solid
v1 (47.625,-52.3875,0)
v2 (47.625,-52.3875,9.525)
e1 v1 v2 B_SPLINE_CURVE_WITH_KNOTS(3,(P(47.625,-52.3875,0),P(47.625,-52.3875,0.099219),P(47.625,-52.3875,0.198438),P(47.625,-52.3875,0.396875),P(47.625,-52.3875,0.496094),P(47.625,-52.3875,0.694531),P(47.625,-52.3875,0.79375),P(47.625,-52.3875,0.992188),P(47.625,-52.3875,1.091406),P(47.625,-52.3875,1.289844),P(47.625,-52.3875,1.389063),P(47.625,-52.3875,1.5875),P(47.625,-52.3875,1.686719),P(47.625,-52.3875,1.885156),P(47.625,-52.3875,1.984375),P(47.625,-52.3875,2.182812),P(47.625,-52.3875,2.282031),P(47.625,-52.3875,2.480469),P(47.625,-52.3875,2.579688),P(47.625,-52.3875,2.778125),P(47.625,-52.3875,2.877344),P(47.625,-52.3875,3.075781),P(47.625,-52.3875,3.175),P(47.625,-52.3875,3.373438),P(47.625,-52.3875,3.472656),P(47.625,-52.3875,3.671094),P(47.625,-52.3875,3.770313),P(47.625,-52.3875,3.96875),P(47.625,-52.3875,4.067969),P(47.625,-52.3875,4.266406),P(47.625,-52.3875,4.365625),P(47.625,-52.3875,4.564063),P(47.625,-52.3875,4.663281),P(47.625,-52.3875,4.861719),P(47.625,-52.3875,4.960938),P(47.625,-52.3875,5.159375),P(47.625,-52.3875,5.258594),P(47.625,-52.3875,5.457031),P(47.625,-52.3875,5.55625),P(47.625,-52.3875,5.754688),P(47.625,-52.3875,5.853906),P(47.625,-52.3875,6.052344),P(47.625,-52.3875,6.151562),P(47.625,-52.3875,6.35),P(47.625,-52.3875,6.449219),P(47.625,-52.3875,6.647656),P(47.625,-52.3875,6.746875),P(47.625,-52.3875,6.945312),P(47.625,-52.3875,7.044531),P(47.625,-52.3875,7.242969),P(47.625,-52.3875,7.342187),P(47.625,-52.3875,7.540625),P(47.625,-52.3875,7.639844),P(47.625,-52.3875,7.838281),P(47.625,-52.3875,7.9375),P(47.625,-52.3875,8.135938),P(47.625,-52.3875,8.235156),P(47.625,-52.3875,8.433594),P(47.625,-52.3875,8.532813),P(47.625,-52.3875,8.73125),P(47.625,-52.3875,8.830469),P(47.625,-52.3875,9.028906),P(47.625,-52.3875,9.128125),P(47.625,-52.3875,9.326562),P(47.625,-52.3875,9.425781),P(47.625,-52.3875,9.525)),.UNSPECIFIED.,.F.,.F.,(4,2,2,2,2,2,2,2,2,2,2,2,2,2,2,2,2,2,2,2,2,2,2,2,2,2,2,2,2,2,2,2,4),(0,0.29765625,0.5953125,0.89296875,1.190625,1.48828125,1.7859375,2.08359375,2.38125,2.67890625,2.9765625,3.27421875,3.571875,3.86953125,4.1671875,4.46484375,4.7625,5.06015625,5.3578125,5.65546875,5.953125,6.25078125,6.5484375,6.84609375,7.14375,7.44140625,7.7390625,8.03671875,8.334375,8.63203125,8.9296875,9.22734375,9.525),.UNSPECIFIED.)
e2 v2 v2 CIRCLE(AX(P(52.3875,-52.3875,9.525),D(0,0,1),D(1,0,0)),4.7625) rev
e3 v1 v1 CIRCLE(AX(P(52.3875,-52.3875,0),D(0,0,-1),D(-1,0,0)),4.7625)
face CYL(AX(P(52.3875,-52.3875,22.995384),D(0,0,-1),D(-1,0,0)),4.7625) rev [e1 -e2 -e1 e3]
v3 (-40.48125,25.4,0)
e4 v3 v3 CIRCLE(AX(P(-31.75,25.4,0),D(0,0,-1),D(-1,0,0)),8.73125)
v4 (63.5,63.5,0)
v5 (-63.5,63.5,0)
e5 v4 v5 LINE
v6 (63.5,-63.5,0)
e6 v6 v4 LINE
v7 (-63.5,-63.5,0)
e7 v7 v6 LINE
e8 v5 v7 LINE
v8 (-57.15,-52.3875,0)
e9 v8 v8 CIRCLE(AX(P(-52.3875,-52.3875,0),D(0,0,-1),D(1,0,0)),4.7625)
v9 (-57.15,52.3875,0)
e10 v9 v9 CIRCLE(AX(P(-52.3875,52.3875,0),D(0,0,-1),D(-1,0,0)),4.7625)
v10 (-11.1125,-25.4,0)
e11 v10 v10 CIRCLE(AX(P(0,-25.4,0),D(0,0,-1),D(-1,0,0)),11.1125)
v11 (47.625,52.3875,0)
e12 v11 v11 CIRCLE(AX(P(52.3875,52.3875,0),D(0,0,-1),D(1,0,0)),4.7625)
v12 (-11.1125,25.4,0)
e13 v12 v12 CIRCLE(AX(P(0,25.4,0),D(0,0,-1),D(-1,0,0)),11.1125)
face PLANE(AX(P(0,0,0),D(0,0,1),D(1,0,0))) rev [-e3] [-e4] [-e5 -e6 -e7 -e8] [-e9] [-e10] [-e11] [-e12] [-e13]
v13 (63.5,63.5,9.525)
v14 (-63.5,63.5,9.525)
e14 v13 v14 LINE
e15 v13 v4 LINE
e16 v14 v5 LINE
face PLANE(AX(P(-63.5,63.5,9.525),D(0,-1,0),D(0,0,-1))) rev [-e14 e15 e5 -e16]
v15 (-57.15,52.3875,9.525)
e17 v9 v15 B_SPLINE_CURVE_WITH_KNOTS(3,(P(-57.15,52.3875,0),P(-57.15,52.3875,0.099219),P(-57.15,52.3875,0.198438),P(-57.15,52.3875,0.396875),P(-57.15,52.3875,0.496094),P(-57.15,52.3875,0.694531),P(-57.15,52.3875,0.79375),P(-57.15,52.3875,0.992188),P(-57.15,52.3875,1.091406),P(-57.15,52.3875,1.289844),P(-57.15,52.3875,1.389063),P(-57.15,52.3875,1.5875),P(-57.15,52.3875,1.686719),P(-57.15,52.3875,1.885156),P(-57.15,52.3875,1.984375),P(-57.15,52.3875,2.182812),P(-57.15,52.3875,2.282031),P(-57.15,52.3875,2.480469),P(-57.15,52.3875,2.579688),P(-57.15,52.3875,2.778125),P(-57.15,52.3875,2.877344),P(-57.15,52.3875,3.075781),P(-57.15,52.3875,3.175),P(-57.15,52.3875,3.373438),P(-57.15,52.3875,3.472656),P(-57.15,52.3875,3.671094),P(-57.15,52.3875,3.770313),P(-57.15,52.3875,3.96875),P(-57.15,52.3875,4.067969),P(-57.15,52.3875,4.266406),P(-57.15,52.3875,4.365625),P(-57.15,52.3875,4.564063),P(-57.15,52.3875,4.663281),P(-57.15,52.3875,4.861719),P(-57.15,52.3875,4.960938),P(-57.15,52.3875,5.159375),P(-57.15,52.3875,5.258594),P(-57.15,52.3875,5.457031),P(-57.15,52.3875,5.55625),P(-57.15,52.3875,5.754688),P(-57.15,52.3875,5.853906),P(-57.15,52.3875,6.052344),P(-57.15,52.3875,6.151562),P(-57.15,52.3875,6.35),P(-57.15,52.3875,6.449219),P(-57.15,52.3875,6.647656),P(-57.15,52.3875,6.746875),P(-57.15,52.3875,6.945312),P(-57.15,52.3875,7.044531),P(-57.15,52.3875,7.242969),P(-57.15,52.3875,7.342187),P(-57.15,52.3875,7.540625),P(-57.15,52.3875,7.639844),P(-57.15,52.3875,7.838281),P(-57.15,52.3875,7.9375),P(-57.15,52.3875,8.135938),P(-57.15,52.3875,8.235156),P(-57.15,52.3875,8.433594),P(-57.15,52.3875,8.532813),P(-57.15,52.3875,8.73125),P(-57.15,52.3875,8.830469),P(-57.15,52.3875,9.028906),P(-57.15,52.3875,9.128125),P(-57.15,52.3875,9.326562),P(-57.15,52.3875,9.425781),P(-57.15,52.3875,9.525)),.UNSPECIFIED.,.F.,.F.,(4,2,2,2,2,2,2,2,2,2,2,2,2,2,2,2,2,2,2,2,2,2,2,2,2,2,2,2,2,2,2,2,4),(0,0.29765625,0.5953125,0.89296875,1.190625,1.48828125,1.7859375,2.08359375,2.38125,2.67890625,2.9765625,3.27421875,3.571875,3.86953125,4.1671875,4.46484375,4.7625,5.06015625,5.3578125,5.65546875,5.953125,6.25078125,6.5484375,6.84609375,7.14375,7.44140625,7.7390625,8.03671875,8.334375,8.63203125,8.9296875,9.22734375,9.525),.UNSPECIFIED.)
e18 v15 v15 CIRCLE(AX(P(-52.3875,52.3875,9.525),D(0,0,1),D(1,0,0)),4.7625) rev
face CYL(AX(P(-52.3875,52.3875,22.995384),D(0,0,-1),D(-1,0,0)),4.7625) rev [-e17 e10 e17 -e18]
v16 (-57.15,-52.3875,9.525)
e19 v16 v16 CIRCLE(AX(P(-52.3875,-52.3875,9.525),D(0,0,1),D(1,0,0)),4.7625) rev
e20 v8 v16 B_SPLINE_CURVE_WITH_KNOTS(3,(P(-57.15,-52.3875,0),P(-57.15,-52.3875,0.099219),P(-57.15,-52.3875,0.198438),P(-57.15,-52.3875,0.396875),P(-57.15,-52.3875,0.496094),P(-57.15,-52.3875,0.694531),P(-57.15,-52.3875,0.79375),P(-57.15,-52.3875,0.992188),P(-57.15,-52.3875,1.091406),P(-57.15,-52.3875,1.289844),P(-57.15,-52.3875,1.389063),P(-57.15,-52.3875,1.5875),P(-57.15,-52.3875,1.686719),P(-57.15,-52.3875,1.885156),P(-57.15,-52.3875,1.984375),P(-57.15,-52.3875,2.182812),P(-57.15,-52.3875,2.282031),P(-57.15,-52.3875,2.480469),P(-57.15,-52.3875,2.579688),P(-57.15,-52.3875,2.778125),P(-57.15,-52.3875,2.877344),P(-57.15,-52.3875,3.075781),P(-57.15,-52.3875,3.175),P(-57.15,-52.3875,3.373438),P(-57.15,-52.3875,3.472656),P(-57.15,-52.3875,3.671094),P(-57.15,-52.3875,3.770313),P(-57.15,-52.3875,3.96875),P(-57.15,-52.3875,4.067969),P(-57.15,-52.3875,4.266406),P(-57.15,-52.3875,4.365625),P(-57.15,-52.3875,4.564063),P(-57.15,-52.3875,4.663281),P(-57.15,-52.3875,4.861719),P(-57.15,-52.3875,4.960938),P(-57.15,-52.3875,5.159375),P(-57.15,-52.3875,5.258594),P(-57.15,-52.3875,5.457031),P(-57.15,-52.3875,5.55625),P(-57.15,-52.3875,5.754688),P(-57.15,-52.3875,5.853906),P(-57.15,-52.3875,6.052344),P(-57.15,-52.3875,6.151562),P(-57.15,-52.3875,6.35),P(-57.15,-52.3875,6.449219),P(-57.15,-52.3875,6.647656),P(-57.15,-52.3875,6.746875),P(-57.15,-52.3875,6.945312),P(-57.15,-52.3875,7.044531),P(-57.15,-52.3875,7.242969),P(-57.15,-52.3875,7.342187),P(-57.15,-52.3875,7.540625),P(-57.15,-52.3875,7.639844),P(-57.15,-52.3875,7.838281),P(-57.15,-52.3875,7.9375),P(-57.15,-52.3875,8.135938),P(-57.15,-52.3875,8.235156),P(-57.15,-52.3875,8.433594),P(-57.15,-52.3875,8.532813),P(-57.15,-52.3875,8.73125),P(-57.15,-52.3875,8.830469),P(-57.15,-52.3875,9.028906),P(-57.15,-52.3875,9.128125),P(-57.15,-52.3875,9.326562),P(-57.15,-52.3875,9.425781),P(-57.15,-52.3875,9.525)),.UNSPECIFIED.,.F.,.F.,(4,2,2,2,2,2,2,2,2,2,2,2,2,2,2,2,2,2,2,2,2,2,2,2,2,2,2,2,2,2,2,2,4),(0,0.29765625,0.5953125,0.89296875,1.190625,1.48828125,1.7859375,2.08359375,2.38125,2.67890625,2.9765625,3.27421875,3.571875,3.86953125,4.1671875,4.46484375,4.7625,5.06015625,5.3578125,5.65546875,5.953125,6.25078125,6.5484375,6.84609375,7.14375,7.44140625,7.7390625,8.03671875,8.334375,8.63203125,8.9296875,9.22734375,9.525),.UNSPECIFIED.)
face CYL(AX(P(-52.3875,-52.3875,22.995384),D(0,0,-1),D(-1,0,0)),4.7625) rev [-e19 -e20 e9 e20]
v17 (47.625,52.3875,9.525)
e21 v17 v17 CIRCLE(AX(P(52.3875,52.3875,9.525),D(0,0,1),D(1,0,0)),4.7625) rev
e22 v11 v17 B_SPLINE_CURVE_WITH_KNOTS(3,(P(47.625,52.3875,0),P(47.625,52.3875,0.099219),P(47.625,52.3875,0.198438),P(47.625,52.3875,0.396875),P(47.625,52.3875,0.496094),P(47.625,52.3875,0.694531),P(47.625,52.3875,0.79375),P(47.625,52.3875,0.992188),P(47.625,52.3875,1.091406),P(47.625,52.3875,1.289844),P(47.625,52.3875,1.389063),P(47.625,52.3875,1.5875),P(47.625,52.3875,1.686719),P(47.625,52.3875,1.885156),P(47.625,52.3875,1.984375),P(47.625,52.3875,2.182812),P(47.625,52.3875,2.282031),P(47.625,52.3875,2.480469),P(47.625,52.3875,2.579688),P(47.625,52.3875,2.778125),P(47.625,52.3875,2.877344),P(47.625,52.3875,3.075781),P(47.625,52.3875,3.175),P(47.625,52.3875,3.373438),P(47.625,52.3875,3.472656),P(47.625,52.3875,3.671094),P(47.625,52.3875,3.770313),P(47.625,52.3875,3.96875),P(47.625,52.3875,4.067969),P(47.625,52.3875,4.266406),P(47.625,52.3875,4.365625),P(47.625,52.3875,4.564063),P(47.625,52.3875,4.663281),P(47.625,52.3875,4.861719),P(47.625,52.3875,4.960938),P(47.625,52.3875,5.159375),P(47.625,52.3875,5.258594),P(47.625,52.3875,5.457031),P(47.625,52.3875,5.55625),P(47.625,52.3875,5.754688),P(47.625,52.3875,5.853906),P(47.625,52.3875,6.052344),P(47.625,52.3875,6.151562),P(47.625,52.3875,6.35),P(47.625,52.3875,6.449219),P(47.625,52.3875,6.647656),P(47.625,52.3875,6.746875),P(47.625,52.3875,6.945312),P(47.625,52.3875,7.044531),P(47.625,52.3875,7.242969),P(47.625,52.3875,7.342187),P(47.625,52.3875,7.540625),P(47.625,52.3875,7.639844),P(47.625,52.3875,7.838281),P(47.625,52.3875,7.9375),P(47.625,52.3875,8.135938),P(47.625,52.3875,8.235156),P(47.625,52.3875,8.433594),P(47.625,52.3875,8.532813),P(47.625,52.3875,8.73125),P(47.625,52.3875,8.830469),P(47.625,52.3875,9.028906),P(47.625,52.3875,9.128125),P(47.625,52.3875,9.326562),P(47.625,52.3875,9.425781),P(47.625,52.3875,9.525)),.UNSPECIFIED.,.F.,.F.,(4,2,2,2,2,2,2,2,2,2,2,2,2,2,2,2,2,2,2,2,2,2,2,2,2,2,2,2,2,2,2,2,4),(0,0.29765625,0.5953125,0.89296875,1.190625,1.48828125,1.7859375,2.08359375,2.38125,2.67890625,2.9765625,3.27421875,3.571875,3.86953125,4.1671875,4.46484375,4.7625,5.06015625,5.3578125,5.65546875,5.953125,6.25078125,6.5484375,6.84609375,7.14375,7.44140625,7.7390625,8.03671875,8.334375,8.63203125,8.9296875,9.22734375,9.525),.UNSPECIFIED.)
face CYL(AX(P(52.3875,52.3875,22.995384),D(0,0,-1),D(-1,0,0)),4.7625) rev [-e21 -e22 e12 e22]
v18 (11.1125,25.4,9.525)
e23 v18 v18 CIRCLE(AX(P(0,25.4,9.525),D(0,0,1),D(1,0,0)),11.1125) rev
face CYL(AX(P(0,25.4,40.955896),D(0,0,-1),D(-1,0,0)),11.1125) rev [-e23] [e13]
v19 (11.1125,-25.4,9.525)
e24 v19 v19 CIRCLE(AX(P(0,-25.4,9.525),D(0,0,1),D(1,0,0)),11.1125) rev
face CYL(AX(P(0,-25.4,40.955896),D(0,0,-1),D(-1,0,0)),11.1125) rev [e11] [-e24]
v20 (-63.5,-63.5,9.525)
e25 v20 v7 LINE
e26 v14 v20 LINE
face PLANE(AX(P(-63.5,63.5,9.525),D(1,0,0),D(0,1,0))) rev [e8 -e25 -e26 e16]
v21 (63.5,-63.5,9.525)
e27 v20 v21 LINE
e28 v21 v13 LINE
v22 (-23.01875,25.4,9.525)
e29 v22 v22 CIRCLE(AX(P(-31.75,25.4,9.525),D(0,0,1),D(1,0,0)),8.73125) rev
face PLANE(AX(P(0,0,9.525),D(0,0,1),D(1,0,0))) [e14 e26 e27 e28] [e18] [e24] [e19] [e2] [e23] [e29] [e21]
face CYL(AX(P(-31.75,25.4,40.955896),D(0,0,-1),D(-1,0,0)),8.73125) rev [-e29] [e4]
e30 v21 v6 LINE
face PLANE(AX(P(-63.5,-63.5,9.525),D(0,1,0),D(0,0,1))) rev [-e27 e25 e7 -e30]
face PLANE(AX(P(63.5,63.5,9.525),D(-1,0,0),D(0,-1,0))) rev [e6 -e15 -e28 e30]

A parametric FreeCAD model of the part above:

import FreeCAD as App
import Part
import Sketcher

V = App.Vector
Q = App.Units.Quantity

doc = App.newDocument("Part")
params = doc.addObject("Spreadsheet::Sheet", "Params")
for row, (alias, value) in enumerate([
    ("sketch1_width", "5 in"),
    ("pad1_length", "0.375 in"),
    ("sketch2_diameter", "0.875 in"),
    ("sketch2_diameter2", "0.6875 in"),
    ("pocket1_length", "0.375 in"),
    ("sketch3_diameter", "0.375 in"),
    ("pocket2_length", "0.375 in"),
], start=1):
    params.set(f"A{row}", alias)
    params.set(f"B{row}", "=" + value)
    params.setAlias(f"B{row}", alias)

body = doc.addObject("PartDesign::Body", "Body")

sketch1 = doc.addObject("Sketcher::SketchObject", "Sketch")
body.addObject(sketch1)
sketch1.AttachmentSupport = (doc.XY_Plane, [""])
sketch1.MapMode = "FlatFace"
sketch1.addGeometry([
    Part.LineSegment(V(-64, 64, 0), V(-64, -64, 0)),
    Part.LineSegment(V(-64, -64, 0), V(64, -64, 0)),
    Part.LineSegment(V(64, -64, 0), V(64, 64, 0)),
    Part.LineSegment(V(64, 64, 0), V(-64, 64, 0)),
], False)
sketch1.addConstraint([
    Sketcher.Constraint("Coincident", 0, 2, 1, 1),
    Sketcher.Constraint("Coincident", 1, 2, 2, 1),
    Sketcher.Constraint("Coincident", 2, 2, 3, 1),
    Sketcher.Constraint("Coincident", 3, 2, 0, 1),
    Sketcher.Constraint("Vertical", 0),
    Sketcher.Constraint("Horizontal", 1),
    Sketcher.Constraint("Vertical", 2),
    Sketcher.Constraint("Horizontal", 3),
    Sketcher.Constraint("Symmetric", 0, 2, 2, 2, -1, 1),
    Sketcher.Constraint("Equal", 3, 0),
    Sketcher.Constraint("DistanceX", 1, 1, 1, 2, Q("5 in")),
])
sketch1.setExpression("Constraints[10]", "Params.sketch1_width")
pad1 = doc.addObject("PartDesign::Pad", "Pad")
body.addObject(pad1)
pad1.Profile = sketch1
pad1.setExpression("Length", "Params.pad1_length")

sketch2 = doc.addObject("Sketcher::SketchObject", "Sketch001")
body.addObject(sketch2)
sketch2.AttachmentSupport = (doc.XY_Plane, [""])
sketch2.MapMode = "FlatFace"
sketch2.addGeometry([
    Part.Circle(V(0, 25, 0), V(0, 0, 1), 11),
    Part.Circle(V(-32, 25, 0), V(0, 0, 1), 9),
    Part.Circle(V(0, -25, 0), V(0, 0, 1), 11),
], False)
sketch2.addConstraint([
    Sketcher.Constraint("Equal", 0, 2),
    Sketcher.Constraint("Symmetric", 0, 3, 2, 3, -1, 1),
    Sketcher.Constraint("PointOnObject", 0, 3, -2),
    Sketcher.Constraint("Horizontal", 0, 3, 1, 3),
    Sketcher.Constraint("Diameter", 0, Q("0.875 in")),
    Sketcher.Constraint("Diameter", 1, Q("0.6875 in")),
    Sketcher.Constraint("DistanceY", -1, 1, 0, 3, Q("1 in")),
    Sketcher.Constraint("DistanceX", 1, 3, -1, 1, Q("1.25 in")),
])
sketch2.setExpression("Constraints[4]", "Params.sketch2_diameter")
sketch2.setExpression("Constraints[5]", "Params.sketch2_diameter2")
pocket1 = doc.addObject("PartDesign::Pocket", "Pocket")
body.addObject(pocket1)
pocket1.Profile = sketch2
pocket1.setExpression("Length", "Params.pocket1_length")
pocket1.Reversed = True

sketch3 = doc.addObject("Sketcher::SketchObject", "Sketch002")
body.addObject(sketch3)
sketch3.AttachmentSupport = (doc.XY_Plane, [""])
sketch3.MapMode = "FlatFace"
sketch3.addGeometry([
    Part.Circle(V(-52.4, 52.4, 0), V(0, 0, 1), 4.8),
    Part.Circle(V(-52.4, -52.4, 0), V(0, 0, 1), 4.8),
    Part.Circle(V(52.4, 52.4, 0), V(0, 0, 1), 4.8),
    Part.Circle(V(52.4, -52.4, 0), V(0, 0, 1), 4.8),
], False)
sketch3.addConstraint([
    Sketcher.Constraint("Equal", 0, 1),
    Sketcher.Constraint("Equal", 1, 2),
    Sketcher.Constraint("Equal", 2, 3),
    Sketcher.Constraint("Symmetric", 1, 3, 2, 3, -1, 1),
    Sketcher.Constraint("Symmetric", 0, 3, 3, 3, -1, 1),
    Sketcher.Constraint("Symmetric", 0, 3, 2, 3, -2),
    Sketcher.Constraint("Diameter", 0, Q("0.375 in")),
    Sketcher.Constraint("DistanceX", 0, 3, -1, 1, Q("2.0625 in")),
    Sketcher.Constraint("DistanceY", -1, 1, 0, 3, Q("2.0625 in")),
])
sketch3.setExpression("Constraints[6]", "Params.sketch3_diameter")
pocket2 = doc.addObject("PartDesign::Pocket", "Pocket001")
body.addObject(pocket2)
pocket2.Profile = sketch3
pocket2.setExpression("Length", "Params.pocket2_length")
pocket2.Reversed = True

doc.recompute()
